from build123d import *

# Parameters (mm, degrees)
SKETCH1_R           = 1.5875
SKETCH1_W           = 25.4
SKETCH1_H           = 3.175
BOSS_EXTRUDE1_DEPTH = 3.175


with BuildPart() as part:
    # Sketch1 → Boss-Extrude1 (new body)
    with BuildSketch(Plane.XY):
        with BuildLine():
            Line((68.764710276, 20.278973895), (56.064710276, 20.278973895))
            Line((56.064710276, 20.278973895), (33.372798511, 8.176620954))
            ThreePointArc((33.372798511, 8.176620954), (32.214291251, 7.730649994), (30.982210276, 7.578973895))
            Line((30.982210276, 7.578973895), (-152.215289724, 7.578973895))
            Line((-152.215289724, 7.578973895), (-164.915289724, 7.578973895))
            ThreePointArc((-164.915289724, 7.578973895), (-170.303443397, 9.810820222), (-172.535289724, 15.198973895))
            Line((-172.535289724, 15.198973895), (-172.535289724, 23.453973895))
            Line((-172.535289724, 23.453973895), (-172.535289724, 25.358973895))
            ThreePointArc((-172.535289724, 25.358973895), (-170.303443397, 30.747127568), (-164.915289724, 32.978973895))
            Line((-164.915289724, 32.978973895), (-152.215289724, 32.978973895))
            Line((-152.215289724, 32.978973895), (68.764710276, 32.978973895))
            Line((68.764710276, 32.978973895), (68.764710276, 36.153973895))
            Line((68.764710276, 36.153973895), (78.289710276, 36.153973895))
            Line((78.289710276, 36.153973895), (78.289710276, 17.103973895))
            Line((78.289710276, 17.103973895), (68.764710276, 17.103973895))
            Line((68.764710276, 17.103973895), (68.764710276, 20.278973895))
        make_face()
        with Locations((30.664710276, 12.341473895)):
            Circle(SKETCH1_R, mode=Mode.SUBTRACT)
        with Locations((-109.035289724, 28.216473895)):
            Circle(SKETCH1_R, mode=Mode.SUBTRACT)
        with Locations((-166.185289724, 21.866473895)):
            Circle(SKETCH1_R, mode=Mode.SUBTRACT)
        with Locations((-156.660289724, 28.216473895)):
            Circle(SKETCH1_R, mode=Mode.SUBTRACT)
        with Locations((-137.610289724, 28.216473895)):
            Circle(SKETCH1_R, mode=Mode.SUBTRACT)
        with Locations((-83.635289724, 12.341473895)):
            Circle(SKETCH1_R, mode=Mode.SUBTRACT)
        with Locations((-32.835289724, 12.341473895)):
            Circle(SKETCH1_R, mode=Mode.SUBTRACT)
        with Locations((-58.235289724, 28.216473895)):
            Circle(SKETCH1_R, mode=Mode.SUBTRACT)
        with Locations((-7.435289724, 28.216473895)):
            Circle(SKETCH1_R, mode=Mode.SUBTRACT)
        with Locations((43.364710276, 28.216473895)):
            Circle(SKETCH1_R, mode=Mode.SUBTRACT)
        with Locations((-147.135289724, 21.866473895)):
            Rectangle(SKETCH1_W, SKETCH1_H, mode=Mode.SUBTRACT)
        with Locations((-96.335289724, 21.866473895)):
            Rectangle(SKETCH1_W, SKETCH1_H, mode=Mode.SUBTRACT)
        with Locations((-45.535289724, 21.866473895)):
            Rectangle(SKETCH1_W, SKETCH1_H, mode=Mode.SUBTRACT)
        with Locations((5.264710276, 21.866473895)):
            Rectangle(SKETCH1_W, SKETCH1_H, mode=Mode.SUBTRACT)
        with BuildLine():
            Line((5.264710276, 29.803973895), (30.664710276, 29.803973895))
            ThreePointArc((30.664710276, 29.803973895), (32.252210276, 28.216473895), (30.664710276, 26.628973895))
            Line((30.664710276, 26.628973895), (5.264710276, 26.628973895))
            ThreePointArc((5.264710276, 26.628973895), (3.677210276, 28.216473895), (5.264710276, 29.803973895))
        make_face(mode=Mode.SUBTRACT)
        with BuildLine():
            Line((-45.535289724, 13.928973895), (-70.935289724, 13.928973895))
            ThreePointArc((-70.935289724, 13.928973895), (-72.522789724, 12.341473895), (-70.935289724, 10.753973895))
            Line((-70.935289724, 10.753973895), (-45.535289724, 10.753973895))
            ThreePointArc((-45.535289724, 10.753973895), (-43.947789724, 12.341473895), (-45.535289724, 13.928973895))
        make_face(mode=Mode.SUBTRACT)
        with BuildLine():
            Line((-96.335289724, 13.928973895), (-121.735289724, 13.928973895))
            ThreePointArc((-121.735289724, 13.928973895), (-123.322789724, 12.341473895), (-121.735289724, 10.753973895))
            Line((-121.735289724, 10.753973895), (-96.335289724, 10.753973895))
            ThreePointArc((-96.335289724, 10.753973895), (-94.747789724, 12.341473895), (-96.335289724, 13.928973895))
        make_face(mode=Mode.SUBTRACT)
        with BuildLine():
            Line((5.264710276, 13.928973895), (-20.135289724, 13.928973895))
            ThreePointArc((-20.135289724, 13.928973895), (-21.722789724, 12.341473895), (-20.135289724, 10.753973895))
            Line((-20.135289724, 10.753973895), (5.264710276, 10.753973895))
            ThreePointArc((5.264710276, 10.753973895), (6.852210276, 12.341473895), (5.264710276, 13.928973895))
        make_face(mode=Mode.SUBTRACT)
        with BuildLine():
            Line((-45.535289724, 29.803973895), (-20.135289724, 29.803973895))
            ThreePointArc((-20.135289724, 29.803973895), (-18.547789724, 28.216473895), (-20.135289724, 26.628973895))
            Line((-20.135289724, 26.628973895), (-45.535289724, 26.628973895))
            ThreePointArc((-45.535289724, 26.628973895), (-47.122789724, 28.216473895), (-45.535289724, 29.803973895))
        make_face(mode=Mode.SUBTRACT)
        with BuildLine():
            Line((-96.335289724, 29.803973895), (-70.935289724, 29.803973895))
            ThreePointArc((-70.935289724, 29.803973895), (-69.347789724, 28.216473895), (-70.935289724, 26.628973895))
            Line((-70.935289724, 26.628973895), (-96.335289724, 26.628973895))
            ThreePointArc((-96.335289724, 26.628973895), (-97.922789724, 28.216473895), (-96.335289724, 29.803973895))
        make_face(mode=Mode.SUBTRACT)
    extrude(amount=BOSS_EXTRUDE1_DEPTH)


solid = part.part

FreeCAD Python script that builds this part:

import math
import FreeCAD as App
import Part
import Sketcher
Q = App.Units.Quantity


def add_polygon(sketch, points):
    """Adds a closed chain of lines whose ends are joined by coincident constraints."""
    first, n = sketch.GeometryCount, len(points)
    for a, b in zip(points, points[1:] + points[:1]):
        sketch.addGeometry(Part.LineSegment(App.Vector(*a, 0), App.Vector(*b, 0)), False)
    for i in range(n):
        sketch.addConstraint(Sketcher.Constraint("Coincident", first + i, 2, first + (i + 1) % n, 1))

doc = App.newDocument("Part")
params = doc.addObject("Spreadsheet::Sheet", "Params")
for row, (alias, value) in enumerate([
    ("sketch1_radius", "0.3 in"),
    ("sketch1_radius2", "0.2 in"),
    ("sketch1_width", "1 in"),
    ("sketch1_diameter", "0.125 in"),
    ("sketch1_width2", "0.5 in"),
    ("pad1_length", "0.125 in"),
], start=1):
    params.set(f"A{row}", alias)
    params.set(f"B{row}", "=" + value)
    params.setAlias(f"B{row}", alias)

body = doc.addObject("PartDesign::Body", "Body")

sketch1 = body.newObject("Sketcher::SketchObject", "Sketch")
sketch1.AttachmentSupport = (doc.getObject("XY_Plane"), [""])
sketch1.MapMode = "FlatFace"
sketch1.addGeometry(Part.LineSegment(App.Vector(56.1, 20.3, 0), App.Vector(68.8, 20.3, 0)), False)
sketch1.addGeometry(Part.LineSegment(App.Vector(68.8, 20.3, 0), App.Vector(68.8, 17.1, 0)), False)
sketch1.addGeometry(Part.LineSegment(App.Vector(68.8, 17.1, 0), App.Vector(78.3, 17.1, 0)), False)
sketch1.addGeometry(Part.LineSegment(App.Vector(78.3, 17.1, 0), App.Vector(78.3, 36.2, 0)), False)
sketch1.addGeometry(Part.LineSegment(App.Vector(78.3, 36.2, 0), App.Vector(68.8, 36.2, 0)), False)
sketch1.addGeometry(Part.LineSegment(App.Vector(68.8, 36.2, 0), App.Vector(68.8, 33, 0)), False)
sketch1.addGeometry(Part.LineSegment(App.Vector(68.8, 33, 0), App.Vector(-164.9, 33, 0)), False)
sketch1.addGeometry(Part.ArcOfCircle(Part.Circle(App.Vector(-164.9, 25.4, 0), App.Vector(0, 0, 1), 7.6), math.radians(90), math.radians(180)), False)
sketch1.addGeometry(Part.LineSegment(App.Vector(-172.5, 25.4, 0), App.Vector(-172.5, 15.2, 0)), False)
sketch1.addGeometry(Part.ArcOfCircle(Part.Circle(App.Vector(-164.9, 15.2, 0), App.Vector(0, 0, 1), 7.6), math.radians(180), math.radians(270)), False)
sketch1.addGeometry(Part.LineSegment(App.Vector(-164.9, 7.6, 0), App.Vector(31, 7.6, 0)), False)
sketch1.addGeometry(Part.ArcOfCircle(Part.Circle(App.Vector(31, 12.7, 0), App.Vector(0, 0, 1), 5.1), math.radians(-90), math.radians(-62)), False)
sketch1.addGeometry(Part.LineSegment(App.Vector(33.4, 8.2, 0), App.Vector(56.1, 20.3, 0)), False)
sketch1.addGeometry(Part.Circle(App.Vector(30.7, 12.3, 0), App.Vector(0, 0, 1), 1.6), False)
sketch1.addGeometry(Part.ArcOfCircle(Part.Circle(App.Vector(5.3, 12.3, 0), App.Vector(0, 0, 1), 1.6), math.radians(-90), math.radians(90)), False)
sketch1.addGeometry(Part.LineSegment(App.Vector(5.3, 10.8, 0), App.Vector(-20.1, 10.8, 0)), False)
sketch1.addGeometry(Part.ArcOfCircle(Part.Circle(App.Vector(-20.1, 12.3, 0), App.Vector(0, 0, 1), 1.6), math.radians(90), math.radians(270)), False)
sketch1.addGeometry(Part.LineSegment(App.Vector(-20.1, 13.9, 0), App.Vector(5.3, 13.9, 0)), False)
sketch1.addGeometry(Part.Circle(App.Vector(-32.8, 12.3, 0), App.Vector(0, 0, 1), 1.6), False)
sketch1.addGeometry(Part.ArcOfCircle(Part.Circle(App.Vector(-45.5, 12.3, 0), App.Vector(0, 0, 1), 1.6), math.radians(-90), math.radians(90)), False)
sketch1.addGeometry(Part.LineSegment(App.Vector(-45.5, 10.8, 0), App.Vector(-70.9, 10.8, 0)), False)
sketch1.addGeometry(Part.ArcOfCircle(Part.Circle(App.Vector(-70.9, 12.3, 0), App.Vector(0, 0, 1), 1.6), math.radians(90), math.radians(270)), False)
sketch1.addGeometry(Part.LineSegment(App.Vector(-70.9, 13.9, 0), App.Vector(-45.5, 13.9, 0)), False)
sketch1.addGeometry(Part.Circle(App.Vector(-83.6, 12.3, 0), App.Vector(0, 0, 1), 1.6), False)
sketch1.addGeometry(Part.ArcOfCircle(Part.Circle(App.Vector(-96.3, 12.3, 0), App.Vector(0, 0, 1), 1.6), math.radians(-90), math.radians(90)), False)
sketch1.addGeometry(Part.LineSegment(App.Vector(-96.3, 10.8, 0), App.Vector(-121.7, 10.8, 0)), False)
sketch1.addGeometry(Part.ArcOfCircle(Part.Circle(App.Vector(-121.7, 12.3, 0), App.Vector(0, 0, 1), 1.6), math.radians(90), math.radians(270)), False)
sketch1.addGeometry(Part.LineSegment(App.Vector(-121.7, 13.9, 0), App.Vector(-96.3, 13.9, 0)), False)
add_polygon(sketch1, [(-7.4, 20.3), (-7.4, 23.5), (18, 23.5), (18, 20.3)])
add_polygon(sketch1, [(-58.2, 20.3), (-58.2, 23.5), (-32.8, 23.5), (-32.8, 20.3)])
sketch1.addGeometry(Part.Circle(App.Vector(43.4, 28.2, 0), App.Vector(0, 0, 1), 1.6), False)
sketch1.addGeometry(Part.LineSegment(App.Vector(5.3, 29.8, 0), App.Vector(30.7, 29.8, 0)), False)
sketch1.addGeometry(Part.ArcOfCircle(Part.Circle(App.Vector(30.7, 28.2, 0), App.Vector(0, 0, 1), 1.6), math.radians(-90), math.radians(90)), False)
sketch1.addGeometry(Part.LineSegment(App.Vector(30.7, 26.6, 0), App.Vector(5.3, 26.6, 0)), False)
sketch1.addGeometry(Part.ArcOfCircle(Part.Circle(App.Vector(5.3, 28.2, 0), App.Vector(0, 0, 1), 1.6), math.radians(90), math.radians(270)), False)
sketch1.addGeometry(Part.Circle(App.Vector(-7.4, 28.2, 0), App.Vector(0, 0, 1), 1.6), False)
sketch1.addGeometry(Part.LineSegment(App.Vector(-45.5, 29.8, 0), App.Vector(-20.1, 29.8, 0)), False)
sketch1.addGeometry(Part.ArcOfCircle(Part.Circle(App.Vector(-20.1, 28.2, 0), App.Vector(0, 0, 1), 1.6), math.radians(-90), math.radians(90)), False)
sketch1.addGeometry(Part.LineSegment(App.Vector(-20.1, 26.6, 0), App.Vector(-45.5, 26.6, 0)), False)
sketch1.addGeometry(Part.ArcOfCircle(Part.Circle(App.Vector(-45.5, 28.2, 0), App.Vector(0, 0, 1), 1.6), math.radians(90), math.radians(270)), False)
sketch1.addGeometry(Part.Circle(App.Vector(-58.2, 28.2, 0), App.Vector(0, 0, 1), 1.6), False)
add_polygon(sketch1, [(-109, 20.3), (-109, 23.5), (-83.6, 23.5), (-83.6, 20.3)])
add_polygon(sketch1, [(-159.8, 20.3), (-159.8, 23.5), (-134.4, 23.5), (-134.4, 20.3)])
sketch1.addGeometry(Part.Circle(App.Vector(-166.2, 21.9, 0), App.Vector(0, 0, 1), 1.6), False)
sketch1.addGeometry(Part.LineSegment(App.Vector(-96.3, 29.8, 0), App.Vector(-70.9, 29.8, 0)), False)
sketch1.addGeometry(Part.ArcOfCircle(Part.Circle(App.Vector(-70.9, 28.2, 0), App.Vector(0, 0, 1), 1.6), math.radians(-90), math.radians(90)), False)
sketch1.addGeometry(Part.LineSegment(App.Vector(-70.9, 26.6, 0), App.Vector(-96.3, 26.6, 0)), False)
sketch1.addGeometry(Part.ArcOfCircle(Part.Circle(App.Vector(-96.3, 28.2, 0), App.Vector(0, 0, 1), 1.6), math.radians(90), math.radians(270)), False)
sketch1.addGeometry(Part.Circle(App.Vector(-109, 28.2, 0), App.Vector(0, 0, 1), 1.6), False)
sketch1.addGeometry(Part.Circle(App.Vector(-137.6, 28.2, 0), App.Vector(0, 0, 1), 1.6), False)
sketch1.addGeometry(Part.Circle(App.Vector(-156.7, 28.2, 0), App.Vector(0, 0, 1), 1.6), False)
sketch1.addConstraint(Sketcher.Constraint("Coincident", 0, 2, 1, 1))
sketch1.addConstraint(Sketcher.Constraint("Coincident", 1, 2, 2, 1))
sketch1.addConstraint(Sketcher.Constraint("Coincident", 2, 2, 3, 1))
sketch1.addConstraint(Sketcher.Constraint("Coincident", 3, 2, 4, 1))
sketch1.addConstraint(Sketcher.Constraint("Coincident", 4, 2, 5, 1))
sketch1.addConstraint(Sketcher.Constraint("Coincident", 5, 2, 6, 1))
sketch1.addConstraint(Sketcher.Constraint("Tangent", 6, 2, 7, 1))
sketch1.addConstraint(Sketcher.Constraint("Tangent", 7, 2, 8, 1))
sketch1.addConstraint(Sketcher.Constraint("Tangent", 8, 2, 9, 1))
sketch1.addConstraint(Sketcher.Constraint("Tangent", 9, 2, 10, 1))
sketch1.addConstraint(Sketcher.Constraint("Tangent", 10, 2, 11, 1))
sketch1.addConstraint(Sketcher.Constraint("Tangent", 11, 2, 12, 1))
sketch1.addConstraint(Sketcher.Constraint("Coincident", 12, 2, 0, 1))
sketch1.addConstraint(Sketcher.Constraint("Tangent", 14, 1, 15, 1))
sketch1.addConstraint(Sketcher.Constraint("Tangent", 15, 2, 16, 2))
sketch1.addConstraint(Sketcher.Constraint("Tangent", 16, 1, 17, 1))
sketch1.addConstraint(Sketcher.Constraint("Tangent", 17, 2, 14, 2))
sketch1.addConstraint(Sketcher.Constraint("Tangent", 19, 1, 20, 1))
sketch1.addConstraint(Sketcher.Constraint("Tangent", 20, 2, 21, 2))
sketch1.addConstraint(Sketcher.Constraint("Tangent", 21, 1, 22, 1))
sketch1.addConstraint(Sketcher.Constraint("Tangent", 22, 2, 19, 2))
sketch1.addConstraint(Sketcher.Constraint("Tangent", 24, 1, 25, 1))
sketch1.addConstraint(Sketcher.Constraint("Tangent", 25, 2, 26, 2))
sketch1.addConstraint(Sketcher.Constraint("Tangent", 26, 1, 27, 1))
sketch1.addConstraint(Sketcher.Constraint("Tangent", 27, 2, 24, 2))
sketch1.addConstraint(Sketcher.Constraint("Tangent", 37, 2, 38, 2))
sketch1.addConstraint(Sketcher.Constraint("Tangent", 38, 1, 39, 1))
sketch1.addConstraint(Sketcher.Constraint("Tangent", 39, 2, 40, 2))
sketch1.addConstraint(Sketcher.Constraint("Tangent", 40, 1, 37, 1))
sketch1.addConstraint(Sketcher.Constraint("Tangent", 42, 2, 43, 2))
sketch1.addConstraint(Sketcher.Constraint("Tangent", 43, 1, 44, 1))
sketch1.addConstraint(Sketcher.Constraint("Tangent", 44, 2, 45, 2))
sketch1.addConstraint(Sketcher.Constraint("Tangent", 45, 1, 42, 1))
sketch1.addConstraint(Sketcher.Constraint("Tangent", 56, 2, 57, 2))
sketch1.addConstraint(Sketcher.Constraint("Tangent", 57, 1, 58, 1))
sketch1.addConstraint(Sketcher.Constraint("Tangent", 58, 2, 59, 2))
sketch1.addConstraint(Sketcher.Constraint("Tangent", 59, 1, 56, 1))
sketch1.addConstraint(Sketcher.Constraint("Horizontal", 0))
sketch1.addConstraint(Sketcher.Constraint("Vertical", 1))
sketch1.addConstraint(Sketcher.Constraint("Horizontal", 2))
sketch1.addConstraint(Sketcher.Constraint("Vertical", 3))
sketch1.addConstraint(Sketcher.Constraint("Horizontal", 4))
sketch1.addConstraint(Sketcher.Constraint("Vertical", 5))
sketch1.addConstraint(Sketcher.Constraint("Horizontal", 6))
sketch1.addConstraint(Sketcher.Constraint("Vertical", 8))
sketch1.addConstraint(Sketcher.Constraint("Horizontal", 10))
sketch1.addConstraint(Sketcher.Constraint("Horizontal", 15))
sketch1.addConstraint(Sketcher.Constraint("Horizontal", 17))
sketch1.addConstraint(Sketcher.Constraint("Horizontal", 20))
sketch1.addConstraint(Sketcher.Constraint("Horizontal", 22))
sketch1.addConstraint(Sketcher.Constraint("Horizontal", 25))
sketch1.addConstraint(Sketcher.Constraint("Horizontal", 27))
sketch1.addConstraint(Sketcher.Constraint("Vertical", 28))
sketch1.addConstraint(Sketcher.Constraint("Horizontal", 29))
sketch1.addConstraint(Sketcher.Constraint("Vertical", 30))
sketch1.addConstraint(Sketcher.Constraint("Horizontal", 31))
sketch1.addConstraint(Sketcher.Constraint("Vertical", 32))
sketch1.addConstraint(Sketcher.Constraint("Horizontal", 33))
sketch1.addConstraint(Sketcher.Constraint("Vertical", 34))
sketch1.addConstraint(Sketcher.Constraint("Horizontal", 35))
sketch1.addConstraint(Sketcher.Constraint("Horizontal", 37))
sketch1.addConstraint(Sketcher.Constraint("Horizontal", 39))
sketch1.addConstraint(Sketcher.Constraint("Horizontal", 42))
sketch1.addConstraint(Sketcher.Constraint("Horizontal", 44))
sketch1.addConstraint(Sketcher.Constraint("Vertical", 47))
sketch1.addConstraint(Sketcher.Constraint("Horizontal", 48))
sketch1.addConstraint(Sketcher.Constraint("Vertical", 49))
sketch1.addConstraint(Sketcher.Constraint("Horizontal", 50))
sketch1.addConstraint(Sketcher.Constraint("Vertical", 51))
sketch1.addConstraint(Sketcher.Constraint("Horizontal", 52))
sketch1.addConstraint(Sketcher.Constraint("Vertical", 53))
sketch1.addConstraint(Sketcher.Constraint("Horizontal", 54))
sketch1.addConstraint(Sketcher.Constraint("Horizontal", 56))
sketch1.addConstraint(Sketcher.Constraint("Horizontal", 58))
sketch1.addConstraint(Sketcher.Constraint("Equal", 7, 9))
sketch1.addConstraint(Sketcher.Constraint("Equal", 13, 14))
sketch1.addConstraint(Sketcher.Constraint("Equal", 16, 18))
sketch1.addConstraint(Sketcher.Constraint("Equal", 18, 19))
sketch1.addConstraint(Sketcher.Constraint("Equal", 21, 23))
sketch1.addConstraint(Sketcher.Constraint("Equal", 23, 24))
sketch1.addConstraint(Sketcher.Constraint("Equal", 26, 36))
sketch1.addConstraint(Sketcher.Constraint("Equal", 36, 38))
sketch1.addConstraint(Sketcher.Constraint("Equal", 40, 41))
sketch1.addConstraint(Sketcher.Constraint("Equal", 41, 43))
sketch1.addConstraint(Sketcher.Constraint("Equal", 45, 46))
sketch1.addConstraint(Sketcher.Constraint("Equal", 46, 55))
sketch1.addConstraint(Sketcher.Constraint("Equal", 55, 57))
sketch1.addConstraint(Sketcher.Constraint("Equal", 59, 60))
sketch1.addConstraint(Sketcher.Constraint("Equal", 60, 61))
sketch1.addConstraint(Sketcher.Constraint("Equal", 61, 62))
sketch1.addConstraint(Sketcher.Constraint("Horizontal", 13, 3, 14, 3))
sketch1.addConstraint(Sketcher.Constraint("Horizontal", 16, 3, 18, 3))
sketch1.addConstraint(Sketcher.Constraint("Horizontal", 18, 3, 19, 3))
sketch1.addConstraint(Sketcher.Constraint("Horizontal", 21, 3, 23, 3))
sketch1.addConstraint(Sketcher.Constraint("Horizontal", 23, 3, 24, 3))
sketch1.addConstraint(Sketcher.Constraint("Horizontal", 36, 3, 38, 3))
sketch1.addConstraint(Sketcher.Constraint("Horizontal", 40, 3, 41, 3))
sketch1.addConstraint(Sketcher.Constraint("Horizontal", 41, 3, 43, 3))
sketch1.addConstraint(Sketcher.Constraint("Horizontal", 45, 3, 46, 3))
sketch1.addConstraint(Sketcher.Constraint("Horizontal", 46, 3, 57, 3))
sketch1.addConstraint(Sketcher.Constraint("Horizontal", 59, 3, 60, 3))
sketch1.addConstraint(Sketcher.Constraint("Horizontal", 60, 3, 61, 3))
sketch1.addConstraint(Sketcher.Constraint("Horizontal", 61, 3, 62, 3))
sketch1.addConstraint(Sketcher.Constraint("Horizontal", 12, 2, 30, 2))
sketch1.addConstraint(Sketcher.Constraint("Horizontal", 29, 2, 32, 2))
sketch1.addConstraint(Sketcher.Constraint("Horizontal", 31, 2, 34, 2))
sketch1.addConstraint(Sketcher.Constraint("Horizontal", 33, 2, 47, 2))
sketch1.addConstraint(Sketcher.Constraint("Horizontal", 35, 2, 49, 2))
sketch1.addConstraint(Sketcher.Constraint("Horizontal", 48, 2, 51, 2))
sketch1.addConstraint(Sketcher.Constraint("Horizontal", 50, 2, 53, 2))
sketch1.addConstraint(Sketcher.Constraint("Vertical", 13, 3, 38, 3))
sketch1.addConstraint(Sketcher.Constraint("Vertical", 14, 3, 40, 3))
sketch1.addConstraint(Sketcher.Constraint("Vertical", 16, 3, 43, 3))
sketch1.addConstraint(Sketcher.Constraint("Vertical", 19, 3, 45, 3))
sketch1.addConstraint(Sketcher.Constraint("Vertical", 21, 3, 57, 3))
sketch1.addConstraint(Sketcher.Constraint("Vertical", 24, 3, 59, 3))
sketch1.addConstraint(Sketcher.Constraint("Vertical", 1, 2, 4, 2))
sketch1.addConstraint(Sketcher.Constraint("Vertical", 41, 3, 28, 2))
sketch1.addConstraint(Sketcher.Constraint("Vertical", 46, 3, 32, 2))
sketch1.addConstraint(Sketcher.Constraint("Vertical", 18, 3, 33, 2))
sketch1.addConstraint(Sketcher.Constraint("Vertical", 60, 3, 47, 2))
sketch1.addConstraint(Sketcher.Constraint("Vertical", 23, 3, 48, 2))
sketch1.addConstraint(Sketcher.Constraint("Equal", 17, 20))
sketch1.addConstraint(Sketcher.Constraint("Equal", 22, 25))
sketch1.addConstraint(Sketcher.Constraint("Equal", 27, 29))
sketch1.addConstraint(Sketcher.Constraint("Equal", 31, 33))
sketch1.addConstraint(Sketcher.Constraint("Equal", 35, 37))
sketch1.addConstraint(Sketcher.Constraint("Equal", 39, 42))
sketch1.addConstraint(Sketcher.Constraint("Equal", 44, 48))
sketch1.addConstraint(Sketcher.Constraint("Equal", 50, 52))
sketch1.addConstraint(Sketcher.Constraint("Equal", 54, 56))
sketch1.addConstraint(Sketcher.Constraint("Equal", 1, 5))
sketch1.addConstraint(Sketcher.Constraint("Equal", 5, 28))
sketch1.addConstraint(Sketcher.Constraint("Radius", 7, Q("0.3 in")))
sketch1.addConstraint(Sketcher.Constraint("Radius", 11, Q("0.2 in")))
sketch1.addConstraint(Sketcher.Constraint("DistanceX", 15, 2, 15, 1, Q("1 in")))
sketch1.addConstraint(Sketcher.Constraint("Diameter", 13, Q("0.125 in")))
sketch1.addConstraint(Sketcher.Constraint("DistanceX", 0, 1, 0, 2, Q("0.5 in")))
sketch1.addConstraint(Sketcher.Constraint("DistanceX", 6, 2, 6, 1, Q("9.2 in")))
sketch1.addConstraint(Sketcher.Constraint("DistanceY", 8, 2, 8, 1, Q("0.4 in")))
sketch1.addConstraint(Sketcher.Constraint("DistanceY", 3, 1, 3, 2, Q("0.75 in")))
sketch1.addConstraint(Sketcher.Constraint("DistanceX", 2, 1, 2, 2, Q("0.375 in")))
sketch1.addConstraint(Sketcher.Constraint("DistanceY", 1, 2, 1, 1, Q("0.125 in")))
sketch1.addConstraint(Sketcher.Constraint("DistanceX", 10, 1, 10, 2, Q("7.7125 in")))
sketch1.addConstraint(Sketcher.Constraint("DistanceX", -1, 1, 11, 2, Q("33.372799 mm")))
sketch1.addConstraint(Sketcher.Constraint("DistanceX", -1, 1, 13, 3, Q("30.66471 mm")))
sketch1.addConstraint(Sketcher.Constraint("DistanceX", 18, 3, -1, 1, Q("32.83529 mm")))
sketch1.addConstraint(Sketcher.Constraint("DistanceX", 23, 3, -1, 1, Q("83.63529 mm")))
sketch1.addConstraint(Sketcher.Constraint("DistanceX", -1, 1, 36, 3, Q("43.36471 mm")))
sketch1.addConstraint(Sketcher.Constraint("DistanceX", 41, 3, -1, 1, Q("7.43529 mm")))
sketch1.addConstraint(Sketcher.Constraint("DistanceX", 55, 3, -1, 1, Q("166.18529 mm")))
sketch1.addConstraint(Sketcher.Constraint("DistanceX", 61, 3, -1, 1, Q("137.61029 mm")))
sketch1.addConstraint(Sketcher.Constraint("DistanceX", 62, 3, -1, 1, Q("156.66029 mm")))
sketch1.addConstraint(Sketcher.Constraint("DistanceY", -1, 1, 11, 2, Q("8.176621 mm")))
sketch1.addConstraint(Sketcher.Constraint("DistanceX", 51, 2, -1, 1, Q("159.83529 mm")))
sketch1.addConstraint(Sketcher.Constraint("DistanceY", -1, 1, 13, 3, Q("12.341474 mm")))
sketch1.addConstraint(Sketcher.Constraint("DistanceY", -1, 1, 36, 3, Q("28.216474 mm")))
sketch1.addConstraint(Sketcher.Constraint("DistanceY", -1, 1, 55, 3, Q("21.866474 mm")))
sketch1.setExpression("Constraints[149]", "Params.sketch1_radius")
sketch1.setExpression("Constraints[150]", "Params.sketch1_radius2")
sketch1.setExpression("Constraints[151]", "Params.sketch1_width")
sketch1.setExpression("Constraints[152]", "Params.sketch1_diameter")
sketch1.setExpression("Constraints[153]", "Params.sketch1_width2")
pad1 = body.newObject("PartDesign::Pad", "Pad")
pad1.Profile = sketch1
pad1.setExpression("Length", "Params.pad1_length")

doc.recompute()
